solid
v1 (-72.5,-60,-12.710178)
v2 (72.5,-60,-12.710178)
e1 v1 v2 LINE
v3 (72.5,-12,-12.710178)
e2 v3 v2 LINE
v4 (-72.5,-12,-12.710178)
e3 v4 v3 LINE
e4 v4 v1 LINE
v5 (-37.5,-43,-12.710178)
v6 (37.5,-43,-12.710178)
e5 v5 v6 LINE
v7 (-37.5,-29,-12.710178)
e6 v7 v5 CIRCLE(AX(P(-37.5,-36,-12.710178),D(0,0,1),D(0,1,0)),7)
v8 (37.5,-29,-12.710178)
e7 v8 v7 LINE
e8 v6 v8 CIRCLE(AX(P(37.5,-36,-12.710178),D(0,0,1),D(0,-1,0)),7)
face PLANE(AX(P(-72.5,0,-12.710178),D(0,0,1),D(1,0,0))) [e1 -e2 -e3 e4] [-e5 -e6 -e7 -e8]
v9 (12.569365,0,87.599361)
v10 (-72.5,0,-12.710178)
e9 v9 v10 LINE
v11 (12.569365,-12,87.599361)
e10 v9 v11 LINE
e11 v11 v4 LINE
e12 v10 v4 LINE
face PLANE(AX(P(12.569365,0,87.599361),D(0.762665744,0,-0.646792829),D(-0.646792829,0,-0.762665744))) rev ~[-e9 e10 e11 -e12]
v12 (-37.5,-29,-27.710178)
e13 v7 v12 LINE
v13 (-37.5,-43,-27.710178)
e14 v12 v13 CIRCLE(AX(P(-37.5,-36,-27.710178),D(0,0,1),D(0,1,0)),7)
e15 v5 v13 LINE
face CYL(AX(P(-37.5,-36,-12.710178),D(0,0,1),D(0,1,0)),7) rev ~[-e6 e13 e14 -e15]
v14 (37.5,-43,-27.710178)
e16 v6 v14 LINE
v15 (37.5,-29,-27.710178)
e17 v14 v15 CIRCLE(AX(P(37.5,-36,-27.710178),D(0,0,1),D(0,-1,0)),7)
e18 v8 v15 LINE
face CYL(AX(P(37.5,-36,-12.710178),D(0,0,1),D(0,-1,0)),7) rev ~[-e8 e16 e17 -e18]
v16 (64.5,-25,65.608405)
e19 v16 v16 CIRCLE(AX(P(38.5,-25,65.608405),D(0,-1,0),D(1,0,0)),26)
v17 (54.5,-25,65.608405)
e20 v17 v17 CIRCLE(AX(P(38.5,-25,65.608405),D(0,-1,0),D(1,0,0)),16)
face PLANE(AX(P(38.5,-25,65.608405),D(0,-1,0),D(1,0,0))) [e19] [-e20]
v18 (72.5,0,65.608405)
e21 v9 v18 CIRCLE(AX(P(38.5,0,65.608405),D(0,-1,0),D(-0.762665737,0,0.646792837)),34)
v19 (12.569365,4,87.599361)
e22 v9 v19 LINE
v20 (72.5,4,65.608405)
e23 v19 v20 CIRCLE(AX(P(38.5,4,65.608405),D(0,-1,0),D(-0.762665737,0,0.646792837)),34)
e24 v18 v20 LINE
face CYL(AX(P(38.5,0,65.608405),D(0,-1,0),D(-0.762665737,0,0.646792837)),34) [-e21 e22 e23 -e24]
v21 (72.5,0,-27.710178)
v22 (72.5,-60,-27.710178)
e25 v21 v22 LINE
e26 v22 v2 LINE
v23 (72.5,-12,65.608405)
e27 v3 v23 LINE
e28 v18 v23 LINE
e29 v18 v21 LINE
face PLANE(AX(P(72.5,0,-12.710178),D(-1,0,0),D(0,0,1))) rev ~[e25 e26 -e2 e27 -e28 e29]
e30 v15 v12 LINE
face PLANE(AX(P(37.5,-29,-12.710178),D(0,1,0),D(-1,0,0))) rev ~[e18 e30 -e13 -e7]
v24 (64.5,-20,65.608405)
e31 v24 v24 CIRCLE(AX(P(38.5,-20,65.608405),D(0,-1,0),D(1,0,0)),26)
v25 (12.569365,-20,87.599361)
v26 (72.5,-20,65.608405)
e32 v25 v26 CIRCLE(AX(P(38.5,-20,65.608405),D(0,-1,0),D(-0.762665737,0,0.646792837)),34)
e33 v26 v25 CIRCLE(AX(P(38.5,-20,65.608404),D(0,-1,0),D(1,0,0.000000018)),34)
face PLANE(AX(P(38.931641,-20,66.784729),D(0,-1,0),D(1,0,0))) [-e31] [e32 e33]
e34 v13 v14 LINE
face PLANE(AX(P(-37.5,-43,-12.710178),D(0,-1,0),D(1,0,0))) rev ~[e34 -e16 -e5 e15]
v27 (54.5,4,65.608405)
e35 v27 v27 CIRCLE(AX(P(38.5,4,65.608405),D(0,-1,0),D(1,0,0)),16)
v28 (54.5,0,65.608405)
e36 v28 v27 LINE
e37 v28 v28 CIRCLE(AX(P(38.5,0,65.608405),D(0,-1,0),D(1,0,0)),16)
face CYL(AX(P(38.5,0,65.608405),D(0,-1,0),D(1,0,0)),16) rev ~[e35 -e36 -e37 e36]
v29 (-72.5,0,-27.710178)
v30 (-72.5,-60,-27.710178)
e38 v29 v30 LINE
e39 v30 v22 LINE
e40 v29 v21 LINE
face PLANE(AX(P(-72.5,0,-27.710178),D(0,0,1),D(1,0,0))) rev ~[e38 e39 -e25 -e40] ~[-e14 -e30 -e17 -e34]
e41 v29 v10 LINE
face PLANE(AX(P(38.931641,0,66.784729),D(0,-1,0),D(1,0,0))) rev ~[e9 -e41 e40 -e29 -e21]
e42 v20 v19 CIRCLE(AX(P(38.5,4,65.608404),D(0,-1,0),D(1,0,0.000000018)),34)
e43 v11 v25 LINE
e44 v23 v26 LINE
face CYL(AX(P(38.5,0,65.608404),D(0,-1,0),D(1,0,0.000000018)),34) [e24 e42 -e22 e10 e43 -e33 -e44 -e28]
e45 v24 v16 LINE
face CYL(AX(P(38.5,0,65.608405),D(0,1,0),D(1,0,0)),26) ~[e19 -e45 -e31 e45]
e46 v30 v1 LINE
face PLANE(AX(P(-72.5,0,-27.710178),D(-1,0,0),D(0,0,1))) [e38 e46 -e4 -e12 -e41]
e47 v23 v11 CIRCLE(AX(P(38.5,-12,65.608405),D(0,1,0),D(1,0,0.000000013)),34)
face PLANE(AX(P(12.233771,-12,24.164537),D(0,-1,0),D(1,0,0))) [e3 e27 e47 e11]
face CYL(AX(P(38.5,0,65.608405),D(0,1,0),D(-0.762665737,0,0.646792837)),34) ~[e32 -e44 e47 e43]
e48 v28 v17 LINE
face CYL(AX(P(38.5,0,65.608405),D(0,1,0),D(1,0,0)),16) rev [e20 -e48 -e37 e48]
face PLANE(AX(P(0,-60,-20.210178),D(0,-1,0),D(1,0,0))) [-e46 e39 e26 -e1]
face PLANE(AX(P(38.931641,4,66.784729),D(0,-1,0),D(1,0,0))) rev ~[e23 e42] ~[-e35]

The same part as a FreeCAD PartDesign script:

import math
import FreeCAD as App
import Part
import Sketcher
Q = App.Units.Quantity

doc = App.newDocument("Part")
params = doc.addObject("Spreadsheet::Sheet", "Params")
for row, (alias, value) in enumerate([
    ("sketch1_width", "145 mm"),
    ("sketch1_height", "15 mm"),
    ("pad1_length", "60 mm"),
    ("sketch2_radius", "34 mm"),
    ("sketch2_width", "145 mm"),
    ("pad2_length", "12 mm"),
    ("sketch3_diameter", "52 mm"),
    ("sketch3_radius", "34 mm"),
    ("pad3_length", "20 mm"),
    ("sketch4_diameter", "52 mm"),
    ("sketch4_diameter2", "32 mm"),
    ("pad4_length", "25 mm"),
    ("sketch5_radius", "7 mm"),
    ("sketch5_width", "75 mm"),
    ("pocket1_length", "25 mm"),
    ("sketch6_diameter", "32 mm"),
    ("sketch6_radius", "34 mm"),
    ("pad5_length", "4 mm"),
], start=1):
    params.set(f"A{row}", alias)
    params.set(f"B{row}", "=" + value)
    params.setAlias(f"B{row}", alias)

body = doc.addObject("PartDesign::Body", "Body")

sketch1 = body.newObject("Sketcher::SketchObject", "Sketch")
sketch1.AttachmentSupport = (doc.getObject("XZ_Plane"), [""])
sketch1.MapMode = "FlatFace"
sketch1.addGeometry([
    Part.LineSegment(App.Vector(-72.5, -12.710178, 0), App.Vector(-72.5, -27.710178, 0)),
    Part.LineSegment(App.Vector(-72.5, -27.710178, 0), App.Vector(72.5, -27.710178, 0)),
    Part.LineSegment(App.Vector(72.5, -27.710178, 0), App.Vector(72.5, -12.710178, 0)),
    Part.LineSegment(App.Vector(72.5, -12.710178, 0), App.Vector(-72.5, -12.710178, 0)),
], False)
sketch1.addConstraint([
    Sketcher.Constraint("Coincident", 0, 2, 1, 1),
    Sketcher.Constraint("Coincident", 1, 2, 2, 1),
    Sketcher.Constraint("Coincident", 2, 2, 3, 1),
    Sketcher.Constraint("Coincident", 3, 2, 0, 1),
    Sketcher.Constraint("Vertical", 0),
    Sketcher.Constraint("Horizontal", 1),
    Sketcher.Constraint("Vertical", 2),
    Sketcher.Constraint("Horizontal", 3),
    Sketcher.Constraint("DistanceX", 1, 1, 1, 2, Q("145 mm")),
    Sketcher.Constraint("DistanceY", 0, 2, 0, 1, Q("15 mm")),
    Sketcher.Constraint("DistanceX", 0, 2, -1, 1, Q("72.5 mm")),
    Sketcher.Constraint("DistanceY", 2, 2, -1, 1, Q("12.710178 mm")),
])
sketch1.setExpression("Constraints[8]", "Params.sketch1_width")
sketch1.setExpression("Constraints[9]", "Params.sketch1_height")
pad1 = body.newObject("PartDesign::Pad", "Pad")
pad1.Profile = sketch1
pad1.setExpression("Length", "Params.pad1_length")

sketch2 = body.newObject("Sketcher::SketchObject", "Sketch001")
sketch2.AttachmentSupport = (doc.getObject("XZ_Plane"), [""])
sketch2.MapMode = "FlatFace"
sketch2.addGeometry([
    Part.LineSegment(App.Vector(12.569365, 87.599361, 0), App.Vector(-72.5, -12.710178, 0)),
    Part.LineSegment(App.Vector(-72.5, -12.710178, 0), App.Vector(72.5, -12.710178, 0)),
    Part.LineSegment(App.Vector(72.5, -12.710178, 0), App.Vector(72.5, 65.608405, 0)),
    Part.ArcOfCircle(Part.Circle(App.Vector(38.5, 65.608405, 0), App.Vector(0, 0, 1), 34), math.radians(139.69977), math.radians(360.000001)),
], False)
sketch2.addConstraint([
    Sketcher.Constraint("Coincident", 0, 2, 1, 1),
    Sketcher.Constraint("Coincident", 1, 2, 2, 1),
    Sketcher.Constraint("Tangent", 2, 2, 3, 2),
    Sketcher.Constraint("Tangent", 3, 1, 0, 1),
    Sketcher.Constraint("Horizontal", 1),
    Sketcher.Constraint("Vertical", 2),
    Sketcher.Constraint("Radius", 3, Q("34 mm")),
    Sketcher.Constraint("DistanceX", 1, 1, 1, 2, Q("145 mm")),
    Sketcher.Constraint("DistanceX", -1, 1, 3, 3, Q("38.5 mm")),
    Sketcher.Constraint("DistanceY", 2, 1, 2, 2, Q("78.318583 mm")),
    Sketcher.Constraint("DistanceY", 0, 2, -1, 1, Q("12.710178 mm")),
])
sketch2.setExpression("Constraints[6]", "Params.sketch2_radius")
sketch2.setExpression("Constraints[7]", "Params.sketch2_width")
pad2 = body.newObject("PartDesign::Pad", "Pad001")
pad2.Profile = sketch2
pad2.setExpression("Length", "Params.pad2_length")

sketch3 = body.newObject("Sketcher::SketchObject", "Sketch002")
sketch3.AttachmentSupport = (doc.getObject("XZ_Plane"), [""])
sketch3.MapMode = "FlatFace"
sketch3.addGeometry([
    Part.ArcOfCircle(Part.Circle(App.Vector(38.5, 65.608404, 0), App.Vector(0, 0, 1), 34), math.radians(0.000001), math.radians(139.69977)),
    Part.ArcOfCircle(Part.Circle(App.Vector(38.5, 65.608405, 0), App.Vector(0, 0, 1), 34), math.radians(139.69977), math.radians(360.000001)),
    Part.Circle(App.Vector(38.5, 65.608405, 0), App.Vector(0, 0, 1), 26),
], False)
sketch3.addConstraint([
    Sketcher.Constraint("Tangent", 0, 1, 1, 2),
    Sketcher.Constraint("Coincident", 1, 1, 0, 2),
    Sketcher.Constraint("Coincident", 2, 3, 0, 3),
    Sketcher.Constraint("Horizontal", 2, 3, 0, 1),
    Sketcher.Constraint("Diameter", 2, Q("52 mm")),
    Sketcher.Constraint("Radius", 0, Q("34 mm")),
    Sketcher.Constraint("DistanceX", -1, 1, 0, 3, Q("38.5 mm")),
    Sketcher.Constraint("DistanceY", -1, 1, 1, 1, Q("87.599361 mm")),
    Sketcher.Constraint("DistanceY", -1, 1, 0, 3, Q("65.608404 mm")),
])
sketch3.setExpression("Constraints[4]", "Params.sketch3_diameter")
sketch3.setExpression("Constraints[5]", "Params.sketch3_radius")
pad3 = body.newObject("PartDesign::Pad", "Pad002")
pad3.Profile = sketch3
pad3.setExpression("Length", "Params.pad3_length")

sketch4 = body.newObject("Sketcher::SketchObject", "Sketch003")
sketch4.AttachmentSupport = (doc.getObject("XZ_Plane"), [""])
sketch4.MapMode = "FlatFace"
sketch4.addGeometry([
    Part.Circle(App.Vector(38.5, 65.608405, 0), App.Vector(0, 0, 1), 26),
    Part.Circle(App.Vector(38.5, 65.608405, 0), App.Vector(0, 0, 1), 16),
], False)
sketch4.addConstraint([
    Sketcher.Constraint("Coincident", 1, 3, 0, 3),
    Sketcher.Constraint("Diameter", 0, Q("52 mm")),
    Sketcher.Constraint("Diameter", 1, Q("32 mm")),
    Sketcher.Constraint("DistanceX", -1, 1, 0, 3, Q("38.5 mm")),
    Sketcher.Constraint("DistanceY", -1, 1, 0, 3, Q("65.608405 mm")),
])
sketch4.setExpression("Constraints[1]", "Params.sketch4_diameter")
sketch4.setExpression("Constraints[2]", "Params.sketch4_diameter2")
pad4 = body.newObject("PartDesign::Pad", "Pad003")
pad4.Profile = sketch4
pad4.setExpression("Length", "Params.pad4_length")

sketch5 = body.newObject("Sketcher::SketchObject", "Sketch004")
sketch5.AttachmentSupport = (doc.getObject("XY_Plane"), [""])
sketch5.MapMode = "FlatFace"
sketch5.AttachmentOffset = App.Placement(App.Vector(0, 0, -12.710178), App.Rotation())
sketch5.addGeometry([
    Part.LineSegment(App.Vector(37.5, -29, 0), App.Vector(-37.5, -29, 0)),
    Part.ArcOfCircle(Part.Circle(App.Vector(-37.5, -36, 0), App.Vector(0, 0, 1), 7), math.radians(90), math.radians(270)),
    Part.LineSegment(App.Vector(-37.5, -43, 0), App.Vector(37.5, -43, 0)),
    Part.ArcOfCircle(Part.Circle(App.Vector(37.5, -36, 0), App.Vector(0, 0, 1), 7), math.radians(-90), math.radians(90)),
], False)
sketch5.addConstraint([
    Sketcher.Constraint("Tangent", 0, 2, 1, 1),
    Sketcher.Constraint("Tangent", 1, 2, 2, 1),
    Sketcher.Constraint("Tangent", 2, 2, 3, 1),
    Sketcher.Constraint("Tangent", 3, 2, 0, 1),
    Sketcher.Constraint("Horizontal", 0),
    Sketcher.Constraint("Horizontal", 2),
    Sketcher.Constraint("Radius", 1, Q("7 mm")),
    Sketcher.Constraint("DistanceX", 0, 2, 0, 1, Q("75 mm")),
    Sketcher.Constraint("DistanceY", 1, 3, -1, 1, Q("36 mm")),
    Sketcher.Constraint("DistanceX", 1, 3, -1, 1, Q("37.5 mm")),
])
sketch5.setExpression("Constraints[6]", "Params.sketch5_radius")
sketch5.setExpression("Constraints[7]", "Params.sketch5_width")
pocket1 = body.newObject("PartDesign::Pocket", "Pocket")
pocket1.Profile = sketch5
pocket1.setExpression("Length", "Params.pocket1_length")

sketch6 = body.newObject("Sketcher::SketchObject", "Sketch005")
sketch6.AttachmentSupport = (doc.getObject("XZ_Plane"), [""])
sketch6.MapMode = "FlatFace"
sketch6.addGeometry([
    Part.ArcOfCircle(Part.Circle(App.Vector(38.5, 65.608404, 0), App.Vector(0, 0, 1), 34), math.radians(0.000001), math.radians(139.69977)),
    Part.ArcOfCircle(Part.Circle(App.Vector(38.5, 65.608405, 0), App.Vector(0, 0, 1), 34), math.radians(139.69977), math.radians(360.000001)),
    Part.Circle(App.Vector(38.5, 65.608405, 0), App.Vector(0, 0, 1), 16),
], False)
sketch6.addConstraint([
    Sketcher.Constraint("Tangent", 0, 1, 1, 2),
    Sketcher.Constraint("Coincident", 1, 1, 0, 2),
    Sketcher.Constraint("Coincident", 2, 3, 0, 3),
    Sketcher.Constraint("Horizontal", 2, 3, 0, 1),
    Sketcher.Constraint("Diameter", 2, Q("32 mm")),
    Sketcher.Constraint("Radius", 0, Q("34 mm")),
    Sketcher.Constraint("DistanceX", -1, 1, 0, 3, Q("38.5 mm")),
    Sketcher.Constraint("DistanceY", -1, 1, 1, 1, Q("87.599361 mm")),
    Sketcher.Constraint("DistanceY", -1, 1, 0, 3, Q("65.608404 mm")),
])
sketch6.setExpression("Constraints[4]", "Params.sketch6_diameter")
sketch6.setExpression("Constraints[5]", "Params.sketch6_radius")
pad5 = body.newObject("PartDesign::Pad", "Pad004")
pad5.Profile = sketch6
pad5.setExpression("Length", "Params.pad5_length")
pad5.Reversed = True

doc.recompute()
